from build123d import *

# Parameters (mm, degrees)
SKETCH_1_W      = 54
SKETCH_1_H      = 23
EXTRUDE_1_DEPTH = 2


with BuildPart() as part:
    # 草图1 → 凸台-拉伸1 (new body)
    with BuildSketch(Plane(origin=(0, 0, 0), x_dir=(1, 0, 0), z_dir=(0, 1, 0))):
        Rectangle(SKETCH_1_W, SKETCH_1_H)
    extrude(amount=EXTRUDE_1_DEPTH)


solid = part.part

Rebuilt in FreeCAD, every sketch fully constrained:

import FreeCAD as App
import Part
import Sketcher

V = App.Vector


def add_polygon(sketch, points):
    """Adds a closed chain of lines whose ends are joined by coincident constraints."""
    first, n = sketch.GeometryCount, len(points)
    for a, b in zip(points, points[1:] + points[:1]):
        sketch.addGeometry(Part.LineSegment(App.Vector(*a, 0), App.Vector(*b, 0)), False)
    for i in range(n):
        sketch.addConstraint(Sketcher.Constraint("Coincident", first + i, 2, first + (i + 1) % n, 1))

doc = App.newDocument("Part")
body = doc.addObject("PartDesign::Body", "Body")

sketch1 = body.newObject("Sketcher::SketchObject", "Sketch")
sketch1.AttachmentSupport = (doc.getObject("XZ_Plane"), [""])
sketch1.MapMode = "FlatFace"
add_polygon(sketch1, [(-27, -12), (-27, 12), (27, 12), (27, -12)])
sketch1.addConstraint(Sketcher.Constraint("Vertical", 0))
sketch1.addConstraint(Sketcher.Constraint("Horizontal", 1))
sketch1.addConstraint(Sketcher.Constraint("Vertical", 2))
sketch1.addConstraint(Sketcher.Constraint("Horizontal", 3))
sketch1.addConstraint(Sketcher.Constraint("Symmetric", 0, 2, 2, 2, -1, 1))
sketch1.addConstraint(Sketcher.Constraint("DistanceX", 1, 1, 1, 2, 54.0))
sketch1.addConstraint(Sketcher.Constraint("DistanceY", 0, 1, 0, 2, 23.0))
pad1 = body.newObject("PartDesign::Pad", "Pad")
pad1.Profile = sketch1
pad1.Length = 2
pad1.Reversed = True

doc.recompute()
